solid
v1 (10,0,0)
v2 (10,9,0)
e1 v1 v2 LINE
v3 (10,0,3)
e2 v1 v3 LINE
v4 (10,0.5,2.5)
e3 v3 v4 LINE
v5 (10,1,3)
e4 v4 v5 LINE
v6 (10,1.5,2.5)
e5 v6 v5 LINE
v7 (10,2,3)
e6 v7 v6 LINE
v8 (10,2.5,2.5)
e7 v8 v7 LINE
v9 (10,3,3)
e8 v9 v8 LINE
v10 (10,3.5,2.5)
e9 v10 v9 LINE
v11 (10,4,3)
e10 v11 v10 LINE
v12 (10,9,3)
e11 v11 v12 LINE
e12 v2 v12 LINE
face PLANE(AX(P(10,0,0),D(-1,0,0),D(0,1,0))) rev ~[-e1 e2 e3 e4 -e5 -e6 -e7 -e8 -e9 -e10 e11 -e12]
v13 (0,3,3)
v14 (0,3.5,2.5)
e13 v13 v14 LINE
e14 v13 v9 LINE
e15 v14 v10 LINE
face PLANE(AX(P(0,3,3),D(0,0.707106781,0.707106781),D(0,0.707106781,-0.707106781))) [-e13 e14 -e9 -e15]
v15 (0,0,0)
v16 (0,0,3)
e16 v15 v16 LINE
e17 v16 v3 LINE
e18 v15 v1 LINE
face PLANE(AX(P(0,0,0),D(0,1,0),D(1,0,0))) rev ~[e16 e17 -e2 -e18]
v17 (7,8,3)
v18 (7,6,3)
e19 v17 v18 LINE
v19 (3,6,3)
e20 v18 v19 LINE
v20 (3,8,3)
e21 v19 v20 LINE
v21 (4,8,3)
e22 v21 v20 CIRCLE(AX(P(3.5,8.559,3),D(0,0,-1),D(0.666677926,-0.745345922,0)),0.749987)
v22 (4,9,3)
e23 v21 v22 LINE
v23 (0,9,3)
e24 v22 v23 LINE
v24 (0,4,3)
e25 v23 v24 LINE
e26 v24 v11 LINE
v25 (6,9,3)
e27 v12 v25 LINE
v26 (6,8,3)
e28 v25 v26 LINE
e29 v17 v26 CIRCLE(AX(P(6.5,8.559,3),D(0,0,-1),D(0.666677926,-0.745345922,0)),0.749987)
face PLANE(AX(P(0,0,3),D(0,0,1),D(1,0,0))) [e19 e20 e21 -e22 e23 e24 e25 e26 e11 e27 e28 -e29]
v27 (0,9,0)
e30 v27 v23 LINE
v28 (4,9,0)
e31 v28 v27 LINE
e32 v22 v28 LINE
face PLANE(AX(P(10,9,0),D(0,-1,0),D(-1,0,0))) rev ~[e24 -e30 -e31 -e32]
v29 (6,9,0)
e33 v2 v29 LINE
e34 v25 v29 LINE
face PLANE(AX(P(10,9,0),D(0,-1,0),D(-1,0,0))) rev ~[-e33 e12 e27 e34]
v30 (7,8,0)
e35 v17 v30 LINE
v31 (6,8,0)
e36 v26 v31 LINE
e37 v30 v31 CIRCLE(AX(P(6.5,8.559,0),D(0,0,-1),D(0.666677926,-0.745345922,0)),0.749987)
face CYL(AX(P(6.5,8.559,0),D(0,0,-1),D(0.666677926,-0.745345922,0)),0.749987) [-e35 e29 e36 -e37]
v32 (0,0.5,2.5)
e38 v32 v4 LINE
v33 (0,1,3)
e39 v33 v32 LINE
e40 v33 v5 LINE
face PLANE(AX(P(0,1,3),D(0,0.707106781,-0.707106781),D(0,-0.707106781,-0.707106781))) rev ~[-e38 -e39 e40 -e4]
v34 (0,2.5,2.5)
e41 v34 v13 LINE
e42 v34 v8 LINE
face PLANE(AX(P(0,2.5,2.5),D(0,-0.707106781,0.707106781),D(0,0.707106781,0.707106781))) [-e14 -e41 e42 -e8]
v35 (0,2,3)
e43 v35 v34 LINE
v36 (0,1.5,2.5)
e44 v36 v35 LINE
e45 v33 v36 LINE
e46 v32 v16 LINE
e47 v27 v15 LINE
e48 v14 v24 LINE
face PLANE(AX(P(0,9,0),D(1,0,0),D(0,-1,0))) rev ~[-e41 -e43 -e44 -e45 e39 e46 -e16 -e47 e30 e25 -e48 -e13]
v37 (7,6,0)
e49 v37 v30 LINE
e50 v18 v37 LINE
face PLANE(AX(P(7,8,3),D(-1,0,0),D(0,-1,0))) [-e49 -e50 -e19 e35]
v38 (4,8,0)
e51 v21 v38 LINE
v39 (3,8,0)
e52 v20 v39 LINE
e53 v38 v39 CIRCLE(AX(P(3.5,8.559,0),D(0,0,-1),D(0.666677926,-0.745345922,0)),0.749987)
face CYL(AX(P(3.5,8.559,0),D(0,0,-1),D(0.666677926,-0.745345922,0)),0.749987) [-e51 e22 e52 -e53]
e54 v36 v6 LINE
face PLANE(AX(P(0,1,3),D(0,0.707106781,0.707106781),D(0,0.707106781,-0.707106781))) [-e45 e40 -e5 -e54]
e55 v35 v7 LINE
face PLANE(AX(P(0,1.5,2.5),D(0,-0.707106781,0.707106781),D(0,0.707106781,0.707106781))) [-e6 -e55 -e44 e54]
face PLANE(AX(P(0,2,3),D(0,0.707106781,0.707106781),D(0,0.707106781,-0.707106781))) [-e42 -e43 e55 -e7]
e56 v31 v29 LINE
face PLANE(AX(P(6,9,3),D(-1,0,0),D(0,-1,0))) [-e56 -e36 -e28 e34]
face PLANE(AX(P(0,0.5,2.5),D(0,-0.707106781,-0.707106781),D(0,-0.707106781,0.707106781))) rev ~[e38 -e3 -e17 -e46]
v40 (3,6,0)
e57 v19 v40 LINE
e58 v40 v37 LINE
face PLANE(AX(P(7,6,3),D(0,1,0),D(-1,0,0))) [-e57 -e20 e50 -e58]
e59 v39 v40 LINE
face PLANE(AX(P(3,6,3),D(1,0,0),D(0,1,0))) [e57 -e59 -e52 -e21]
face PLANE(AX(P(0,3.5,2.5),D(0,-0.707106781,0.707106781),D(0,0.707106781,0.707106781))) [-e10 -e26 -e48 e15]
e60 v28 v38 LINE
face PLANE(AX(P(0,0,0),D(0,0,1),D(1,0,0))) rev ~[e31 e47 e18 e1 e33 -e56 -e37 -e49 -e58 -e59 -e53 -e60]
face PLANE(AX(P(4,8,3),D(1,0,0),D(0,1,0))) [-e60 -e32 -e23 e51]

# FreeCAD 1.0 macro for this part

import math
import FreeCAD as App
import Part
import Sketcher
from FreeCAD import Vector


def add_polygon(sketch, points):
    """Adds a closed chain of lines whose ends are joined by coincident constraints."""
    first, n = sketch.GeometryCount, len(points)
    for a, b in zip(points, points[1:] + points[:1]):
        sketch.addGeometry(Part.LineSegment(App.Vector(*a, 0), App.Vector(*b, 0)), False)
    for i in range(n):
        sketch.addConstraint(Sketcher.Constraint("Coincident", first + i, 2, first + (i + 1) % n, 1))

doc = App.newDocument("Part")
body = doc.addObject("PartDesign::Body", "Body")

# Sketch on XY plane
sketch1 = body.newObject("Sketcher::SketchObject", "Sketch")
sketch1.AttachmentSupport = (doc.getObject("XY_Plane"), [""])
sketch1.MapMode = "FlatFace"
add_polygon(sketch1, [(0, 9), (0, 0), (10, 0), (10, 9)])  # lines 0-3
sketch1.addConstraint(Sketcher.Constraint("Vertical", 0))
sketch1.addConstraint(Sketcher.Constraint("Horizontal", 1))
sketch1.addConstraint(Sketcher.Constraint("Vertical", 2))
sketch1.addConstraint(Sketcher.Constraint("Horizontal", 3))
sketch1.addConstraint(Sketcher.Constraint("Coincident", 0, 2, -1, 1))
sketch1.addConstraint(Sketcher.Constraint("DistanceX", 1, 1, 1, 2, 10.0))
sketch1.addConstraint(Sketcher.Constraint("DistanceY", 0, 2, 0, 1, 9.0))
pad1 = body.newObject("PartDesign::Pad", "Pad")
pad1.Profile = sketch1
pad1.Length = 3

# Sketch on XY plane
sketch2 = body.newObject("Sketcher::SketchObject", "Sketch001")
sketch2.AttachmentSupport = (doc.getObject("XY_Plane"), [""])
sketch2.MapMode = "FlatFace"
sketch2.AttachmentOffset = App.Placement(Vector(0, 0, 3), App.Rotation())
add_polygon(sketch2, [(6, 8), (6, 9), (4, 9), (4, 8), (3, 8), (3, 6), (7, 6), (7, 8)])  # lines 0-7
sketch2.addConstraint(Sketcher.Constraint("Vertical", 0))
sketch2.addConstraint(Sketcher.Constraint("Horizontal", 1))
sketch2.addConstraint(Sketcher.Constraint("Vertical", 2))
sketch2.addConstraint(Sketcher.Constraint("Horizontal", 3))
sketch2.addConstraint(Sketcher.Constraint("Vertical", 4))
sketch2.addConstraint(Sketcher.Constraint("Horizontal", 5))
sketch2.addConstraint(Sketcher.Constraint("Vertical", 6))
sketch2.addConstraint(Sketcher.Constraint("Horizontal", 7))
sketch2.addConstraint(Sketcher.Constraint("Horizontal", 3, 2, 6, 2))
sketch2.addConstraint(Sketcher.Constraint("Equal", 3, 7))
sketch2.addConstraint(Sketcher.Constraint("Equal", 7, 0))
sketch2.addConstraint(Sketcher.Constraint("Equal", 1, 4))
sketch2.addConstraint(Sketcher.Constraint("DistanceX", 1, 2, 1, 1, 2.0))
sketch2.addConstraint(Sketcher.Constraint("DistanceX", 5, 1, 5, 2, 4.0))
sketch2.addConstraint(Sketcher.Constraint("DistanceX", -1, 1, 1, 2, 4.0))
sketch2.addConstraint(Sketcher.Constraint("DistanceY", -1, 1, 0, 2, 9.0))
pocket1 = body.newObject("PartDesign::Pocket", "Pocket")
pocket1.Profile = sketch2
pocket1.Type = "UpToFirst"

# Sketch on YZ plane
sketch3 = body.newObject("Sketcher::SketchObject", "Sketch002")
sketch3.AttachmentSupport = (doc.getObject("YZ_Plane"), [""])
sketch3.MapMode = "FlatFace"
add_polygon(sketch3, [(0.5, 2.5), (0, 3), (1, 3)])  # lines 0-2
add_polygon(sketch3, [(1.5, 2.5), (1, 3), (2, 3)])  # lines 3-5
add_polygon(sketch3, [(2.5, 2.5), (2, 3), (3, 3)])  # lines 6-8
add_polygon(sketch3, [(3.5, 2.5), (3, 3), (4, 3)])  # lines 9-11
sketch3.addConstraint(Sketcher.Constraint("Horizontal", 1))
sketch3.addConstraint(Sketcher.Constraint("Horizontal", 4))
sketch3.addConstraint(Sketcher.Constraint("Horizontal", 7))
sketch3.addConstraint(Sketcher.Constraint("Horizontal", 10))
sketch3.addConstraint(Sketcher.Constraint("Coincident", 3, 2, 1, 2))
sketch3.addConstraint(Sketcher.Constraint("Coincident", 6, 2, 4, 2))
sketch3.addConstraint(Sketcher.Constraint("Coincident", 9, 2, 7, 2))
sketch3.addConstraint(Sketcher.Constraint("PointOnObject", 0, 2, -2))
sketch3.addConstraint(Sketcher.Constraint("Perpendicular", 0, 2))
sketch3.addConstraint(Sketcher.Constraint("Perpendicular", 2, 3))
sketch3.addConstraint(Sketcher.Constraint("Perpendicular", 3, 5))
sketch3.addConstraint(Sketcher.Constraint("Perpendicular", 5, 6))
sketch3.addConstraint(Sketcher.Constraint("Perpendicular", 6, 8))
sketch3.addConstraint(Sketcher.Constraint("Perpendicular", 8, 9))
sketch3.addConstraint(Sketcher.Constraint("Perpendicular", 9, 11))
sketch3.addConstraint(Sketcher.Constraint("Horizontal", 2, 2, 5, 2))
sketch3.addConstraint(Sketcher.Constraint("Horizontal", 5, 2, 8, 2))
sketch3.addConstraint(Sketcher.Constraint("Horizontal", 8, 2, 11, 2))
sketch3.addConstraint(Sketcher.Constraint("Equal", 0, 2))
sketch3.addConstraint(Sketcher.Constraint("DistanceX", -1, 1, 2, 2, 0.5))
sketch3.addConstraint(Sketcher.Constraint("DistanceY", -1, 1, 0, 2, 3.0))
pocket2 = body.newObject("PartDesign::Pocket", "Pocket001")
pocket2.Profile = sketch3
pocket2.Type = "UpToFirst"
pocket2.Reversed = True

# Sketch on XY plane
sketch4 = body.newObject("Sketcher::SketchObject", "Sketch003")
sketch4.AttachmentSupport = (doc.getObject("XY_Plane"), [""])
sketch4.MapMode = "FlatFace"
sketch4.addGeometry(Part.LineSegment(Vector(6, 8, 0), Vector(7, 8, 0)), False)
sketch4.addGeometry(Part.ArcOfCircle(Part.Circle(Vector(6.5, 8.6, 0), Vector(0, 0, 1), 0.7), math.radians(-132), math.radians(-48)), False)
sketch4.addGeometry(Part.LineSegment(Vector(3, 8, 0), Vector(4, 8, 0)), False)
sketch4.addGeometry(Part.ArcOfCircle(Part.Circle(Vector(3.5, 8.6, 0), Vector(0, 0, 1), 0.7), math.radians(-132), math.radians(-48)), False)
sketch4.addConstraint(Sketcher.Constraint("Coincident", 0, 1, 1, 1))
sketch4.addConstraint(Sketcher.Constraint("Coincident", 1, 2, 0, 2))
sketch4.addConstraint(Sketcher.Constraint("Coincident", 2, 1, 3, 1))
sketch4.addConstraint(Sketcher.Constraint("Coincident", 3, 2, 2, 2))
sketch4.addConstraint(Sketcher.Constraint("Horizontal", 0))
sketch4.addConstraint(Sketcher.Constraint("Horizontal", 2))
sketch4.addConstraint(Sketcher.Constraint("Equal", 1, 3))
sketch4.addConstraint(Sketcher.Constraint("Horizontal", 1, 3, 3, 3))
sketch4.addConstraint(Sketcher.Constraint("Horizontal", 1, 2, 2, 1))
sketch4.addConstraint(Sketcher.Constraint("Radius", 1, 0.75))
sketch4.addConstraint(Sketcher.Constraint("DistanceX", 0, 1, 0, 2, 1.0))
sketch4.addConstraint(Sketcher.Constraint("DistanceX", -1, 1, 0, 1, 6.0))
sketch4.addConstraint(Sketcher.Constraint("DistanceY", -1, 1, 0, 1, 8.0))
sketch4.addConstraint(Sketcher.Constraint("DistanceX", -1, 1, 2, 1, 3.0))
pad2 = body.newObject("PartDesign::Pad", "Pad001")
pad2.Profile = sketch4
pad2.Length = 3

doc.recompute()
